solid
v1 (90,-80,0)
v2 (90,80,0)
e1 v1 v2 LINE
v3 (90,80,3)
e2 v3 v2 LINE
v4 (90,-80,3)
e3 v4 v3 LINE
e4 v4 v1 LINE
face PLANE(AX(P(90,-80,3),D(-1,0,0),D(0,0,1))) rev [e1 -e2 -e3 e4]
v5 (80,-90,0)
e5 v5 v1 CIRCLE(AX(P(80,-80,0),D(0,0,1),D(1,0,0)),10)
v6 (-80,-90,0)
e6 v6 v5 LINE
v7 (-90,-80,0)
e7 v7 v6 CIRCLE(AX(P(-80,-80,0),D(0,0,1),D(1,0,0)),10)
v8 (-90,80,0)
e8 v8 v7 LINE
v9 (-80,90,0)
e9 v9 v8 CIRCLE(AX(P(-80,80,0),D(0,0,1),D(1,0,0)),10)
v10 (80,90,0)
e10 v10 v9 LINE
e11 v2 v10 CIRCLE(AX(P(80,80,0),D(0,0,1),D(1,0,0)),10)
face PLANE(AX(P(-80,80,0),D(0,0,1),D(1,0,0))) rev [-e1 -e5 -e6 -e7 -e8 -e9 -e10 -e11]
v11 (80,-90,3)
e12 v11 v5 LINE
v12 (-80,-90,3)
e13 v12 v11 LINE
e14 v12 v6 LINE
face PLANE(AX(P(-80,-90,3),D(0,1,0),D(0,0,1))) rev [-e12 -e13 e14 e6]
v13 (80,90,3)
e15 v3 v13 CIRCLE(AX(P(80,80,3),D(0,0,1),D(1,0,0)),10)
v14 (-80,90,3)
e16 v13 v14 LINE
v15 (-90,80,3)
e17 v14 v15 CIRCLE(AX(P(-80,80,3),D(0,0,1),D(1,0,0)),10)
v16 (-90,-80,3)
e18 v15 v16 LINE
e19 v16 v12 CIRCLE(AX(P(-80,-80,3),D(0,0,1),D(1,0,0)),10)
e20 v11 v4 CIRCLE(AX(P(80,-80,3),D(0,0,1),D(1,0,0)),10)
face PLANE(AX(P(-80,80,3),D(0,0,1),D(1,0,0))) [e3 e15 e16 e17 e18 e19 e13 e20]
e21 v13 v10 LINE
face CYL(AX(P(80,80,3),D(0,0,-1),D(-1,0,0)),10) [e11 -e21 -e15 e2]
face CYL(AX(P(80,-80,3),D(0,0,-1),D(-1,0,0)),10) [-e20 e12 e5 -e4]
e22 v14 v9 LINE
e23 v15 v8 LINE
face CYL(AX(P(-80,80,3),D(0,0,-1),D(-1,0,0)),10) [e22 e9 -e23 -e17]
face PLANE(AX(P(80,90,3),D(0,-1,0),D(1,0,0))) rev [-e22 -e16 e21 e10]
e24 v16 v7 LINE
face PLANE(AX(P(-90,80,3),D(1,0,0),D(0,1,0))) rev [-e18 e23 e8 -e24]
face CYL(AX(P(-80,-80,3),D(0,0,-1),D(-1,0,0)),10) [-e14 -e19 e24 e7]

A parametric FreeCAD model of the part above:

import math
import FreeCAD as App
import Part
import Sketcher

V = App.Vector
Q = App.Units.Quantity

doc = App.newDocument("Part")
body = doc.addObject("PartDesign::Body", "Body")

sketch1 = doc.addObject("Sketcher::SketchObject", "Sketch")
body.addObject(sketch1)
sketch1.AttachmentSupport = (doc.XY_Plane, [""])
sketch1.MapMode = "FlatFace"
sketch1.addGeometry(Part.LineSegment(V(-90, 80, 0), V(-90, -80, 0)), False)
sketch1.addGeometry(Part.ArcOfCircle(Part.Circle(V(-80, -80, 0), V(0, 0, 1), 10), math.radians(180), math.radians(270)), False)
sketch1.addGeometry(Part.LineSegment(V(-80, -90, 0), V(80, -90, 0)), False)
sketch1.addGeometry(Part.ArcOfCircle(Part.Circle(V(80, -80, 0), V(0, 0, 1), 10), math.radians(-90), math.radians(0)), False)
sketch1.addGeometry(Part.LineSegment(V(90, -80, 0), V(90, 80, 0)), False)
sketch1.addGeometry(Part.ArcOfCircle(Part.Circle(V(80, 80, 0), V(0, 0, 1), 10), math.radians(0), math.radians(90)), False)
sketch1.addGeometry(Part.LineSegment(V(80, 90, 0), V(-80, 90, 0)), False)
sketch1.addGeometry(Part.ArcOfCircle(Part.Circle(V(-80, 80, 0), V(0, 0, 1), 10), math.radians(90), math.radians(180)), False)
sketch1.addConstraint(Sketcher.Constraint("Tangent", 0, 2, 1, 1))
sketch1.addConstraint(Sketcher.Constraint("Tangent", 1, 2, 2, 1))
sketch1.addConstraint(Sketcher.Constraint("Tangent", 2, 2, 3, 1))
sketch1.addConstraint(Sketcher.Constraint("Tangent", 3, 2, 4, 1))
sketch1.addConstraint(Sketcher.Constraint("Tangent", 4, 2, 5, 1))
sketch1.addConstraint(Sketcher.Constraint("Tangent", 5, 2, 6, 1))
sketch1.addConstraint(Sketcher.Constraint("Tangent", 6, 2, 7, 1))
sketch1.addConstraint(Sketcher.Constraint("Tangent", 7, 2, 0, 1))
sketch1.addConstraint(Sketcher.Constraint("Vertical", 0))
sketch1.addConstraint(Sketcher.Constraint("Horizontal", 2))
sketch1.addConstraint(Sketcher.Constraint("Vertical", 4))
sketch1.addConstraint(Sketcher.Constraint("Horizontal", 6))
sketch1.addConstraint(Sketcher.Constraint("Equal", 1, 3))
sketch1.addConstraint(Sketcher.Constraint("Equal", 3, 5))
sketch1.addConstraint(Sketcher.Constraint("Equal", 5, 7))
sketch1.addConstraint(Sketcher.Constraint("Symmetric", 1, 3, 5, 3, -1, 1))
sketch1.addConstraint(Sketcher.Constraint("Equal", 6, 0))
sketch1.addConstraint(Sketcher.Constraint("Radius", 1, Q("10 mm")))
sketch1.addConstraint(Sketcher.Constraint("DistanceX", 2, 1, 2, 2, Q("160 mm")))
pad1 = doc.addObject("PartDesign::Pad", "Pad")
body.addObject(pad1)
pad1.Profile = sketch1
pad1.Length = 3

doc.recompute()
